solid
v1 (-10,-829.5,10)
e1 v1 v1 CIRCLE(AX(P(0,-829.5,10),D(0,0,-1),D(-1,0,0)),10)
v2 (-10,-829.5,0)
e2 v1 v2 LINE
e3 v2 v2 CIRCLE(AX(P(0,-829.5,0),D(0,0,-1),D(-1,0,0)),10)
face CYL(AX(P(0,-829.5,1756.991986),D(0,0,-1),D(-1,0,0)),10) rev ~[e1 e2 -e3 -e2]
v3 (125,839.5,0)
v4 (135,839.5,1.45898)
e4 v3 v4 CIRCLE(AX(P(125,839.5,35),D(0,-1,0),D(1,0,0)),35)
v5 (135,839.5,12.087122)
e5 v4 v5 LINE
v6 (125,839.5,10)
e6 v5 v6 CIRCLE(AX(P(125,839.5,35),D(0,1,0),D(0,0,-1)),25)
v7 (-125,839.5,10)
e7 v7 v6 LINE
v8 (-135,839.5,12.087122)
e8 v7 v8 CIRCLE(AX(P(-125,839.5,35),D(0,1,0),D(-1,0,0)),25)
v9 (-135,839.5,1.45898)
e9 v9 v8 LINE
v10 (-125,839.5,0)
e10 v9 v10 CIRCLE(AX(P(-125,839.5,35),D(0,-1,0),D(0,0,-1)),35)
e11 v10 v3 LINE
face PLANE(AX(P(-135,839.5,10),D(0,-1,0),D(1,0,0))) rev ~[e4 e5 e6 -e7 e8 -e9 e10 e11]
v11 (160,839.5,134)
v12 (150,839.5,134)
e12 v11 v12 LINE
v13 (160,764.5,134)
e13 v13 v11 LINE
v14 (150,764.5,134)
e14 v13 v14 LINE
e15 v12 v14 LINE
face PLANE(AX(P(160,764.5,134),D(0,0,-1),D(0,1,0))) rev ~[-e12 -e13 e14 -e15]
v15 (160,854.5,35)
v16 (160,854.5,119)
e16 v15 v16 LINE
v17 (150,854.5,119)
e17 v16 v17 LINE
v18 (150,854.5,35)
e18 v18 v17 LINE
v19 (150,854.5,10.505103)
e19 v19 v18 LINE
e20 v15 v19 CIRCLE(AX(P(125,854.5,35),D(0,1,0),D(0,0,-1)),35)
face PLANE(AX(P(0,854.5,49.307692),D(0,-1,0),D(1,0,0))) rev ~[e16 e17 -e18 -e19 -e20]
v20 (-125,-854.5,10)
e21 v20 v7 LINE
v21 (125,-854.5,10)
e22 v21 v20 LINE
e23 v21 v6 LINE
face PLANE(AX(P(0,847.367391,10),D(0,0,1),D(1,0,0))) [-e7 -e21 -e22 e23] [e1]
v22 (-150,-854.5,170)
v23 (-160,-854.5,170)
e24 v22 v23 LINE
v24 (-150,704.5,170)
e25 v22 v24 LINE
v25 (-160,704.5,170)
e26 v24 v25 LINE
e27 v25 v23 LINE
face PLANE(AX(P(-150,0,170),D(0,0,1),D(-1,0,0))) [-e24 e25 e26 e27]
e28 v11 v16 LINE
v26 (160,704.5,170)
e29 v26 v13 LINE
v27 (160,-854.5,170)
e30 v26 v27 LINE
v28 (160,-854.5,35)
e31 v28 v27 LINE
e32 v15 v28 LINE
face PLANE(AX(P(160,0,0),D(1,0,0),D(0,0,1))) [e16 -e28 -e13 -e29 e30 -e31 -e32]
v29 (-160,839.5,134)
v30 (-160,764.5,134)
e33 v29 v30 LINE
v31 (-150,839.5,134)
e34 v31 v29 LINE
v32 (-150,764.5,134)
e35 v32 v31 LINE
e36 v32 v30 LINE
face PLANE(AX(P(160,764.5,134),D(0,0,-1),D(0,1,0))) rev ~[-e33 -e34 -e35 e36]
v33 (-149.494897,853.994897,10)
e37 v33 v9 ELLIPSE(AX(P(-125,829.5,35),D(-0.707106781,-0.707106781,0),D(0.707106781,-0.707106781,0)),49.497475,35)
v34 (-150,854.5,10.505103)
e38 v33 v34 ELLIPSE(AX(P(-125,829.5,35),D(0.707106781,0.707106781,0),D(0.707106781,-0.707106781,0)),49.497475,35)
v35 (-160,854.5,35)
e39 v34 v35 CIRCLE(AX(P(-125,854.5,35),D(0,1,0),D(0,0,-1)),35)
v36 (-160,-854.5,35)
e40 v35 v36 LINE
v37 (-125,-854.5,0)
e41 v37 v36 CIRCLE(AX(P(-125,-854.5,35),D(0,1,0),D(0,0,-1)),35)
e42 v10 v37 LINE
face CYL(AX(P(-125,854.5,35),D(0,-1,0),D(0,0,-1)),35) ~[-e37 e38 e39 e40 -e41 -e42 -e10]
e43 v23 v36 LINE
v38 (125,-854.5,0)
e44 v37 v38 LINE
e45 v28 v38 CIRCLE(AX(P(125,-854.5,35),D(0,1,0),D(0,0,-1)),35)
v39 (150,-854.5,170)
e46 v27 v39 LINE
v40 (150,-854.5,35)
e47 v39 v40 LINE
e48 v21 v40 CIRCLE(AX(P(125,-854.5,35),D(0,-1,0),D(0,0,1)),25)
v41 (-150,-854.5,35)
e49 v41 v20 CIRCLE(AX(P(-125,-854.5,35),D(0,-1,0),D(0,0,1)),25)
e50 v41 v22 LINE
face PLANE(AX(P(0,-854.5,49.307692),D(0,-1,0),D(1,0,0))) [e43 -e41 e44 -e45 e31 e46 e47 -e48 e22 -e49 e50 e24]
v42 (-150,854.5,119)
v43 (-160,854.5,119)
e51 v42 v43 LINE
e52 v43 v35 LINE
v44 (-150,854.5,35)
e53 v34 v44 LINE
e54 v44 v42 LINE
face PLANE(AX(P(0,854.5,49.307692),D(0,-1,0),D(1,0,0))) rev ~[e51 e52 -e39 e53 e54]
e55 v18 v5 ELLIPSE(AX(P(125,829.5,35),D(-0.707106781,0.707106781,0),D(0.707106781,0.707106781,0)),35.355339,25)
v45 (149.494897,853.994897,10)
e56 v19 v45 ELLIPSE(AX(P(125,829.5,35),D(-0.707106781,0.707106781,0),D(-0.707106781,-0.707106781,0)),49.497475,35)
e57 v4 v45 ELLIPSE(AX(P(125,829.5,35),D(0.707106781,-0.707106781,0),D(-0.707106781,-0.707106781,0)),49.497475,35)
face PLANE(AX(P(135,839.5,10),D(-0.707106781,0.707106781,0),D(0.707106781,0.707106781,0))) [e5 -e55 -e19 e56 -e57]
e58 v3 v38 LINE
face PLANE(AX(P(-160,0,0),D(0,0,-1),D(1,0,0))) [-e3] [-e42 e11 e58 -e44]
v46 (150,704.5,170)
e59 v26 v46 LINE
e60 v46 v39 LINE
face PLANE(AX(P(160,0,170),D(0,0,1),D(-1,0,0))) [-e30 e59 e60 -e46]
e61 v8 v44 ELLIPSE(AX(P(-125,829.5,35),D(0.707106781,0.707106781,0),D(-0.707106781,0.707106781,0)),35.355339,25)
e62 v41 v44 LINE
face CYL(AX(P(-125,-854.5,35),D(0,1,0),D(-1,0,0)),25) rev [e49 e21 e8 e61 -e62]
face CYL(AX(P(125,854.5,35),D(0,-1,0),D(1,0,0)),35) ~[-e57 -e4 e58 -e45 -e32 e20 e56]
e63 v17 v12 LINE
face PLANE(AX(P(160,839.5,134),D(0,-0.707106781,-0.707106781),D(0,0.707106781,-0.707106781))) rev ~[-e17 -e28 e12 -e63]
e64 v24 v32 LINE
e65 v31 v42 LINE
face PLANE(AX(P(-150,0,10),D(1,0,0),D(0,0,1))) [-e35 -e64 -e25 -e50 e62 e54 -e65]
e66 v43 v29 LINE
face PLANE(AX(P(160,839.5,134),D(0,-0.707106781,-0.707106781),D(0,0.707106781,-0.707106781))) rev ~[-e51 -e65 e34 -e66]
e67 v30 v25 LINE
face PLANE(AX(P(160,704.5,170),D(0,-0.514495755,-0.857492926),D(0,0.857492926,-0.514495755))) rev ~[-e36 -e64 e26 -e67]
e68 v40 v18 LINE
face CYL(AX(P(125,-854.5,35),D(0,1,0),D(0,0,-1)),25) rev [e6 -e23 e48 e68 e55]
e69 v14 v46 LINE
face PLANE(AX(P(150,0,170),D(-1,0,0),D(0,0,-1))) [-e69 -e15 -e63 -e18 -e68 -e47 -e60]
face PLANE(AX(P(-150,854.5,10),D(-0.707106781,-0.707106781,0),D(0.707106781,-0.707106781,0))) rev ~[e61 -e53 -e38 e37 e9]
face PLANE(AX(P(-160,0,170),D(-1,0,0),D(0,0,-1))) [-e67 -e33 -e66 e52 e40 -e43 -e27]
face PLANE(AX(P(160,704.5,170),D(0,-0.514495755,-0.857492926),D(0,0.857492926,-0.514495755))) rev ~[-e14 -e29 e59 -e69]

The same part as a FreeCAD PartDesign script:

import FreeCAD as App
import Part
import Sketcher
Q = App.Units.Quantity


def edges_at(feature, points):
    """Names of the edges that pass closest to the given points."""
    edges = feature.Shape.Edges
    near = lambda p: min(range(len(edges)), key=lambda i: edges[i].distToShape(Part.Vertex(*p))[0])
    return sorted({f"Edge{near(p) + 1}" for p in points})

doc = App.newDocument("Part")
body = doc.addObject("PartDesign::Body", "Body")

# Sketch on XZ plane
sketch1 = body.newObject("Sketcher::SketchObject", "Sketch")
sketch1.AttachmentSupport = (doc.getObject("XZ_Plane"), [""])
sketch1.MapMode = "FlatFace"
sketch1.addGeometry(Part.LineSegment(App.Vector(-150, 170, 0), App.Vector(-160, 170, 0)), False)
sketch1.addGeometry(Part.LineSegment(App.Vector(-160, 170, 0), App.Vector(-160, 0, 0)), False)
sketch1.addGeometry(Part.LineSegment(App.Vector(-160, 0, 0), App.Vector(160, 0, 0)), False)
sketch1.addGeometry(Part.LineSegment(App.Vector(160, 0, 0), App.Vector(160, 170, 0)), False)
sketch1.addGeometry(Part.LineSegment(App.Vector(160, 170, 0), App.Vector(150, 170, 0)), False)
sketch1.addGeometry(Part.LineSegment(App.Vector(150, 170, 0), App.Vector(150, 10, 0)), False)
sketch1.addGeometry(Part.LineSegment(App.Vector(150, 10, 0), App.Vector(-150, 10, 0)), False)
sketch1.addGeometry(Part.LineSegment(App.Vector(-150, 10, 0), App.Vector(-150, 170, 0)), False)
sketch1.addConstraint(Sketcher.Constraint("Coincident", 0, 2, 1, 1))
sketch1.addConstraint(Sketcher.Constraint("Coincident", 1, 2, 2, 1))
sketch1.addConstraint(Sketcher.Constraint("Coincident", 2, 2, 3, 1))
sketch1.addConstraint(Sketcher.Constraint("Coincident", 3, 2, 4, 1))
sketch1.addConstraint(Sketcher.Constraint("Coincident", 4, 2, 5, 1))
sketch1.addConstraint(Sketcher.Constraint("Coincident", 5, 2, 6, 1))
sketch1.addConstraint(Sketcher.Constraint("Coincident", 6, 2, 7, 1))
sketch1.addConstraint(Sketcher.Constraint("Coincident", 7, 2, 0, 1))
sketch1.addConstraint(Sketcher.Constraint("Horizontal", 0))
sketch1.addConstraint(Sketcher.Constraint("Vertical", 1))
sketch1.addConstraint(Sketcher.Constraint("Horizontal", 2))
sketch1.addConstraint(Sketcher.Constraint("Vertical", 3))
sketch1.addConstraint(Sketcher.Constraint("Horizontal", 4))
sketch1.addConstraint(Sketcher.Constraint("Vertical", 5))
sketch1.addConstraint(Sketcher.Constraint("Horizontal", 6))
sketch1.addConstraint(Sketcher.Constraint("Vertical", 7))
sketch1.addConstraint(Sketcher.Constraint("Symmetric", 1, 2, 2, 2, -1, 1))
sketch1.addConstraint(Sketcher.Constraint("Symmetric", 4, 2, 7, 2, -2))
sketch1.addConstraint(Sketcher.Constraint("DistanceX", 0, 2, 0, 1, Q("10 mm")))
sketch1.addConstraint(Sketcher.Constraint("DistanceX", 2, 1, 2, 2, Q("320 mm")))
sketch1.addConstraint(Sketcher.Constraint("DistanceY", 1, 2, 1, 1, Q("170 mm")))
sketch1.addConstraint(Sketcher.Constraint("DistanceY", 5, 2, 5, 1, Q("160 mm")))
pad1 = body.newObject("PartDesign::Pad", "Pad")
pad1.Profile = sketch1
pad1.Length = 1709
pad1.Midplane = True
doc.recompute()

fillet = body.newObject("PartDesign::Fillet", "Fillet")
fillet.Base = (pad1, edges_at(pad1, [(-150, 0, 10), (150, 0, 10)]))
fillet.Radius = 25
doc.recompute()

fillet2 = body.newObject("PartDesign::Fillet", "Fillet001")
fillet2.Base = (fillet, edges_at(fillet, [(160, 0, 0), (-160, 0, 0)]))
fillet2.Radius = 35

# Sketch on YZ plane
sketch2 = body.newObject("Sketcher::SketchObject", "Sketch001")
sketch2.AttachmentSupport = (doc.getObject("YZ_Plane"), [""])
sketch2.MapMode = "FlatFace"
sketch2.AttachmentOffset = App.Placement(App.Vector(0, 0, 160), App.Rotation())
sketch2.addGeometry(Part.LineSegment(App.Vector(854, 170, 0), App.Vector(704, 170, 0)), False)
sketch2.addGeometry(Part.LineSegment(App.Vector(704, 170, 0), App.Vector(764, 134, 0)), False)
sketch2.addGeometry(Part.LineSegment(App.Vector(764, 134, 0), App.Vector(840, 134, 0)), False)
sketch2.addGeometry(Part.LineSegment(App.Vector(840, 134, 0), App.Vector(854, 119, 0)), False)
sketch2.addGeometry(Part.LineSegment(App.Vector(854, 119, 0), App.Vector(854, 170, 0)), False)
sketch2.addConstraint(Sketcher.Constraint("Coincident", 0, 2, 1, 1))
sketch2.addConstraint(Sketcher.Constraint("Coincident", 1, 2, 2, 1))
sketch2.addConstraint(Sketcher.Constraint("Coincident", 2, 2, 3, 1))
sketch2.addConstraint(Sketcher.Constraint("Coincident", 3, 2, 4, 1))
sketch2.addConstraint(Sketcher.Constraint("Coincident", 4, 2, 0, 1))
sketch2.addConstraint(Sketcher.Constraint("Horizontal", 0))
sketch2.addConstraint(Sketcher.Constraint("Horizontal", 2))
sketch2.addConstraint(Sketcher.Constraint("Vertical", 4))
sketch2.addConstraint(Sketcher.Constraint("DistanceX", 0, 2, 0, 1, Q("150 mm")))
sketch2.addConstraint(Sketcher.Constraint("DistanceX", 2, 1, 2, 2, Q("75 mm")))
sketch2.addConstraint(Sketcher.Constraint("DistanceY", 4, 1, 4, 2, Q("51 mm")))
sketch2.addConstraint(Sketcher.Constraint("Angle", 3, Q("-45 deg")))
sketch2.addConstraint(Sketcher.Constraint("DistanceY", -1, 1, 0, 2, Q("170 mm")))
sketch2.addConstraint(Sketcher.Constraint("DistanceY", -1, 1, 1, 2, Q("134 mm")))
sketch2.addConstraint(Sketcher.Constraint("DistanceX", -1, 1, 0, 2, Q("704.5 mm")))
pocket1 = body.newObject("PartDesign::Pocket", "Pocket")
pocket1.Profile = sketch2
pocket1.Type = "ThroughAll"

# Sketch on XY plane
sketch3 = body.newObject("Sketcher::SketchObject", "Sketch002")
sketch3.AttachmentSupport = (doc.getObject("XY_Plane"), [""])
sketch3.MapMode = "FlatFace"
sketch3.AttachmentOffset = App.Placement(App.Vector(0, 0, 10), App.Rotation())
sketch3.addGeometry(Part.Circle(App.Vector(0, -830, 0), App.Vector(0, 0, 1), 10), False)
sketch3.addConstraint(Sketcher.Constraint("PointOnObject", 0, 3, -2))
sketch3.addConstraint(Sketcher.Constraint("Diameter", 0, Q("20 mm")))
sketch3.addConstraint(Sketcher.Constraint("DistanceY", 0, 3, -1, 1, Q("829.5 mm")))
doc.recompute()
hole = body.newObject("PartDesign::Hole", "Hole")
hole.Profile = sketch3
hole.ThreadType = "None"
hole.Diameter = 20
hole.DepthType = "ThroughAll"

# Sketch on XY plane
sketch4 = body.newObject("Sketcher::SketchObject", "Sketch003")
sketch4.AttachmentSupport = (doc.getObject("XY_Plane"), [""])
sketch4.MapMode = "FlatFace"
sketch4.AttachmentOffset = App.Placement(App.Vector(0, 0, 10), App.Rotation())
sketch4.addGeometry(Part.LineSegment(App.Vector(-150, 854, 0), App.Vector(-135, 840, 0)), False)
sketch4.addGeometry(Part.LineSegment(App.Vector(-135, 840, 0), App.Vector(135, 840, 0)), False)
sketch4.addGeometry(Part.LineSegment(App.Vector(135, 840, 0), App.Vector(150, 854, 0)), False)
sketch4.addGeometry(Part.LineSegment(App.Vector(150, 854, 0), App.Vector(-150, 854, 0)), False)
sketch4.addConstraint(Sketcher.Constraint("Coincident", 0, 2, 1, 1))
sketch4.addConstraint(Sketcher.Constraint("Coincident", 1, 2, 2, 1))
sketch4.addConstraint(Sketcher.Constraint("Coincident", 2, 2, 3, 1))
sketch4.addConstraint(Sketcher.Constraint("Coincident", 3, 2, 0, 1))
sketch4.addConstraint(Sketcher.Constraint("Horizontal", 1))
sketch4.addConstraint(Sketcher.Constraint("Horizontal", 3))
sketch4.addConstraint(Sketcher.Constraint("Perpendicular", 0, 2))
sketch4.addConstraint(Sketcher.Constraint("Equal", 0, 2))
sketch4.addConstraint(Sketcher.Constraint("DistanceX", 1, 1, 1, 2, Q("270 mm")))
sketch4.addConstraint(Sketcher.Constraint("DistanceX", 3, 2, 3, 1, Q("300 mm")))
sketch4.addConstraint(Sketcher.Constraint("DistanceX", 0, 2, -1, 1, Q("135 mm")))
sketch4.addConstraint(Sketcher.Constraint("DistanceY", -1, 1, 0, 2, Q("839.5 mm")))
pocket2 = body.newObject("PartDesign::Pocket", "Pocket001")
pocket2.Profile = sketch4
pocket2.Type = "ThroughAll"
pocket2.Midplane = True

doc.recompute()
